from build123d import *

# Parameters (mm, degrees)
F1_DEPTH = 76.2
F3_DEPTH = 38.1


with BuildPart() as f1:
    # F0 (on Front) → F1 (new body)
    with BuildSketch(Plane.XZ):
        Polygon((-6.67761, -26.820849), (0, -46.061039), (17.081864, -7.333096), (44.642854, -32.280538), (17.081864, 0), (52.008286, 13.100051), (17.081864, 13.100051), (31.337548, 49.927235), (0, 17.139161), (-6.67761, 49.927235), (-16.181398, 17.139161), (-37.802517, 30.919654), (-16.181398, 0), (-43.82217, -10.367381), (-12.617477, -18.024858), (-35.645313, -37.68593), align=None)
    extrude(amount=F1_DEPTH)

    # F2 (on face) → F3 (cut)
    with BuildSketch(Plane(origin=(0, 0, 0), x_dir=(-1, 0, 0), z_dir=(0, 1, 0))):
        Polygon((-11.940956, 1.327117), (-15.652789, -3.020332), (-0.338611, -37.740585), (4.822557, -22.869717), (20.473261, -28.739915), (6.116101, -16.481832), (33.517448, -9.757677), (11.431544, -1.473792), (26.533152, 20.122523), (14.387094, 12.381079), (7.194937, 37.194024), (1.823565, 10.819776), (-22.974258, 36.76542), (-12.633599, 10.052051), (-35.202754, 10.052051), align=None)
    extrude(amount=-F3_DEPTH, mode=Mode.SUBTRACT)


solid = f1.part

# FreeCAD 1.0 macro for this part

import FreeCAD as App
import Part
import Sketcher
from FreeCAD import Vector
Q = App.Units.Quantity


def add_polygon(sketch, points):
    """Adds a closed chain of lines whose ends are joined by coincident constraints."""
    first, n = sketch.GeometryCount, len(points)
    for a, b in zip(points, points[1:] + points[:1]):
        sketch.addGeometry(Part.LineSegment(App.Vector(*a, 0), App.Vector(*b, 0)), False)
    for i in range(n):
        sketch.addConstraint(Sketcher.Constraint("Coincident", first + i, 2, first + (i + 1) % n, 1))

doc = App.newDocument("Part")
body = doc.addObject("PartDesign::Body", "Body")

# Sketch on XZ plane
sketch1 = doc.addObject("Sketcher::SketchObject", "Sketch")
body.addObject(sketch1)
sketch1.AttachmentSupport = (doc.XZ_Plane, [""])
sketch1.MapMode = "FlatFace"
add_polygon(sketch1, [(-7, -27), (0, -46), (17, -7), (45, -32), (17, 0), (52, 13), (17, 13), (31, 50), (0, 17), (-7, 50), (-16, 17), (-38, 31), (-16, 0), (-44, -10), (-13, -18), (-36, -38)])  # lines 0-15
sketch1.addConstraint([
    Sketcher.Constraint("Horizontal", 5),
    Sketcher.Constraint("PointOnObject", 0, 2, -2),
    Sketcher.Constraint("PointOnObject", 3, 2, -1),
    Sketcher.Constraint("PointOnObject", 7, 2, -2),
    Sketcher.Constraint("PointOnObject", 11, 2, -1),
    Sketcher.Constraint("Parallel", 4, 12),
    Sketcher.Constraint("Perpendicular", 3, 14),
    Sketcher.Constraint("Parallel", 12, 15),
    Sketcher.Constraint("Horizontal", 6, 2, 8, 2),
    Sketcher.Constraint("Horizontal", 7, 2, 9, 2),
    Sketcher.Constraint("Vertical", 1, 2, 3, 2),
    Sketcher.Constraint("Vertical", 3, 2, 5, 2),
    Sketcher.Constraint("Vertical", 9, 2, 11, 2),
    Sketcher.Constraint("Vertical", 8, 2, 15, 2),
    Sketcher.Constraint("DistanceX", 9, 2, -1, 1, 16.181398),
    Sketcher.Constraint("DistanceY", 0, 2, 2, 2, 13.780501),
    Sketcher.Constraint("Distance", 1, 42.327812),
    Sketcher.Constraint("Distance", 7, 45.355261),
    Sketcher.Constraint("Distance", 9, 34.137659),
    Sketcher.Constraint("Distance", 10, 25.639321),
    Sketcher.Constraint("Distance", 11, 37.72927),
    Sketcher.Constraint("Distance", 12, 29.521092),
    Sketcher.Constraint("Distance", 14, 30.279349),
    Sketcher.Constraint("Distance", 15, 30.93829),
    Sketcher.Constraint("DistanceX", 5, 2, 5, 1, 34.926422),
    Sketcher.Constraint("DistanceY", 0, 2, -1, 1, 46.061039),
    Sketcher.Constraint("DistanceY", -1, 1, 4, 2, 13.100051),
    Sketcher.Constraint("DistanceX", -1, 1, 6, 2, 31.337548),
    Sketcher.Constraint("DistanceY", -1, 1, 7, 2, 17.139161),
    Sketcher.Constraint("DistanceY", 14, 2, -1, 1, 37.68593),
    Sketcher.Constraint("DistanceX", 1, 2, 2, 2, 27.56099),
    Sketcher.Constraint("DistanceY", 2, 2, 1, 2, 24.947442),
])
pad1 = doc.addObject("PartDesign::Pad", "Pad")
body.addObject(pad1)
pad1.Profile = sketch1
pad1.Length = Q("3 in")

# Sketch on XZ plane
sketch2 = doc.addObject("Sketcher::SketchObject", "Sketch001")
body.addObject(sketch2)
sketch2.AttachmentSupport = (doc.XZ_Plane, [""])
sketch2.MapMode = "FlatFace"
add_polygon(sketch2, [(11.940956, 1.327117), (15.652789, -3.020332), (0.338611, -37.740585), (-4.822557, -22.869717), (-20.473261, -28.739915), (-6.116101, -16.481832), (-33.517448, -9.757677), (-11.431544, -1.473792), (-26.533152, 20.122523), (-14.387094, 12.381079), (-7.194937, 37.194024), (-1.823565, 10.819776), (22.974258, 36.76542), (12.633599, 10.052051), (35.202754, 10.052051)])  # lines 0-14
sketch2.addConstraint([
    Sketcher.Constraint("Horizontal", 13),
    Sketcher.Constraint("Distance", 1, Q("1.4939998 in")),
    Sketcher.Constraint("Distance", 5, Q("1.1108002 in")),
    Sketcher.Constraint("DistanceX", 4, 2, -1, 1, 6.116101),
    Sketcher.Constraint("DistanceX", -1, 1, 12, 2, 12.633599),
    Sketcher.Constraint("DistanceY", 4, 2, 0, 2, 13.4615),
    Sketcher.Constraint("DistanceY", 5, 2, 7, 2, 29.8802),
    Sketcher.Constraint("DistanceY", 7, 2, 9, 2, 17.071501),
    Sketcher.Constraint("DistanceX", 6, 2, 14, 2, 23.3725),
    Sketcher.Constraint("Distance", 0, 5.716469),
    Sketcher.Constraint("Distance", 2, 15.741041),
    Sketcher.Constraint("Distance", 4, 18.878258),
    Sketcher.Constraint("Distance", 11, 35.890228),
    Sketcher.Constraint("Distance", 14, 24.844229),
    Sketcher.Constraint("DistanceX", 13, 1, 13, 2, 22.569155),
    Sketcher.Constraint("DistanceX", -1, 1, 0, 2, 15.652789),
    Sketcher.Constraint("DistanceY", 0, 2, -1, 1, 3.020332),
    Sketcher.Constraint("DistanceX", -1, 1, 1, 2, 0.338611),
    Sketcher.Constraint("DistanceX", 3, 2, -1, 1, 20.473261),
    Sketcher.Constraint("DistanceX", 5, 2, -1, 1, 33.517448),
    Sketcher.Constraint("DistanceY", -1, 1, 8, 2, 12.381079),
    Sketcher.Constraint("DistanceY", -1, 1, 11, 2, 36.76542),
    Sketcher.Constraint("DistanceY", -1, 1, 12, 2, 10.052051),
    Sketcher.Constraint("DistanceY", 1, 2, 2, 2, 14.870868),
    Sketcher.Constraint("DistanceY", 4, 2, 6, 2, 15.00804),
    Sketcher.Constraint("DistanceX", 7, 2, 4, 2, 20.417051),
    Sketcher.Constraint("DistanceX", 8, 2, 6, 2, 2.95555),
    Sketcher.Constraint("DistanceX", 8, 2, 10, 2, 12.563529),
    Sketcher.Constraint("DistanceY", 10, 2, 9, 2, 26.374248),
    Sketcher.Constraint("Distance", 9, 25.834267),
])
pocket1 = doc.addObject("PartDesign::Pocket", "Pocket")
body.addObject(pocket1)
pocket1.Profile = sketch2
pocket1.Length = Q("1.5 in")
pocket1.Reversed = True

doc.recompute()
